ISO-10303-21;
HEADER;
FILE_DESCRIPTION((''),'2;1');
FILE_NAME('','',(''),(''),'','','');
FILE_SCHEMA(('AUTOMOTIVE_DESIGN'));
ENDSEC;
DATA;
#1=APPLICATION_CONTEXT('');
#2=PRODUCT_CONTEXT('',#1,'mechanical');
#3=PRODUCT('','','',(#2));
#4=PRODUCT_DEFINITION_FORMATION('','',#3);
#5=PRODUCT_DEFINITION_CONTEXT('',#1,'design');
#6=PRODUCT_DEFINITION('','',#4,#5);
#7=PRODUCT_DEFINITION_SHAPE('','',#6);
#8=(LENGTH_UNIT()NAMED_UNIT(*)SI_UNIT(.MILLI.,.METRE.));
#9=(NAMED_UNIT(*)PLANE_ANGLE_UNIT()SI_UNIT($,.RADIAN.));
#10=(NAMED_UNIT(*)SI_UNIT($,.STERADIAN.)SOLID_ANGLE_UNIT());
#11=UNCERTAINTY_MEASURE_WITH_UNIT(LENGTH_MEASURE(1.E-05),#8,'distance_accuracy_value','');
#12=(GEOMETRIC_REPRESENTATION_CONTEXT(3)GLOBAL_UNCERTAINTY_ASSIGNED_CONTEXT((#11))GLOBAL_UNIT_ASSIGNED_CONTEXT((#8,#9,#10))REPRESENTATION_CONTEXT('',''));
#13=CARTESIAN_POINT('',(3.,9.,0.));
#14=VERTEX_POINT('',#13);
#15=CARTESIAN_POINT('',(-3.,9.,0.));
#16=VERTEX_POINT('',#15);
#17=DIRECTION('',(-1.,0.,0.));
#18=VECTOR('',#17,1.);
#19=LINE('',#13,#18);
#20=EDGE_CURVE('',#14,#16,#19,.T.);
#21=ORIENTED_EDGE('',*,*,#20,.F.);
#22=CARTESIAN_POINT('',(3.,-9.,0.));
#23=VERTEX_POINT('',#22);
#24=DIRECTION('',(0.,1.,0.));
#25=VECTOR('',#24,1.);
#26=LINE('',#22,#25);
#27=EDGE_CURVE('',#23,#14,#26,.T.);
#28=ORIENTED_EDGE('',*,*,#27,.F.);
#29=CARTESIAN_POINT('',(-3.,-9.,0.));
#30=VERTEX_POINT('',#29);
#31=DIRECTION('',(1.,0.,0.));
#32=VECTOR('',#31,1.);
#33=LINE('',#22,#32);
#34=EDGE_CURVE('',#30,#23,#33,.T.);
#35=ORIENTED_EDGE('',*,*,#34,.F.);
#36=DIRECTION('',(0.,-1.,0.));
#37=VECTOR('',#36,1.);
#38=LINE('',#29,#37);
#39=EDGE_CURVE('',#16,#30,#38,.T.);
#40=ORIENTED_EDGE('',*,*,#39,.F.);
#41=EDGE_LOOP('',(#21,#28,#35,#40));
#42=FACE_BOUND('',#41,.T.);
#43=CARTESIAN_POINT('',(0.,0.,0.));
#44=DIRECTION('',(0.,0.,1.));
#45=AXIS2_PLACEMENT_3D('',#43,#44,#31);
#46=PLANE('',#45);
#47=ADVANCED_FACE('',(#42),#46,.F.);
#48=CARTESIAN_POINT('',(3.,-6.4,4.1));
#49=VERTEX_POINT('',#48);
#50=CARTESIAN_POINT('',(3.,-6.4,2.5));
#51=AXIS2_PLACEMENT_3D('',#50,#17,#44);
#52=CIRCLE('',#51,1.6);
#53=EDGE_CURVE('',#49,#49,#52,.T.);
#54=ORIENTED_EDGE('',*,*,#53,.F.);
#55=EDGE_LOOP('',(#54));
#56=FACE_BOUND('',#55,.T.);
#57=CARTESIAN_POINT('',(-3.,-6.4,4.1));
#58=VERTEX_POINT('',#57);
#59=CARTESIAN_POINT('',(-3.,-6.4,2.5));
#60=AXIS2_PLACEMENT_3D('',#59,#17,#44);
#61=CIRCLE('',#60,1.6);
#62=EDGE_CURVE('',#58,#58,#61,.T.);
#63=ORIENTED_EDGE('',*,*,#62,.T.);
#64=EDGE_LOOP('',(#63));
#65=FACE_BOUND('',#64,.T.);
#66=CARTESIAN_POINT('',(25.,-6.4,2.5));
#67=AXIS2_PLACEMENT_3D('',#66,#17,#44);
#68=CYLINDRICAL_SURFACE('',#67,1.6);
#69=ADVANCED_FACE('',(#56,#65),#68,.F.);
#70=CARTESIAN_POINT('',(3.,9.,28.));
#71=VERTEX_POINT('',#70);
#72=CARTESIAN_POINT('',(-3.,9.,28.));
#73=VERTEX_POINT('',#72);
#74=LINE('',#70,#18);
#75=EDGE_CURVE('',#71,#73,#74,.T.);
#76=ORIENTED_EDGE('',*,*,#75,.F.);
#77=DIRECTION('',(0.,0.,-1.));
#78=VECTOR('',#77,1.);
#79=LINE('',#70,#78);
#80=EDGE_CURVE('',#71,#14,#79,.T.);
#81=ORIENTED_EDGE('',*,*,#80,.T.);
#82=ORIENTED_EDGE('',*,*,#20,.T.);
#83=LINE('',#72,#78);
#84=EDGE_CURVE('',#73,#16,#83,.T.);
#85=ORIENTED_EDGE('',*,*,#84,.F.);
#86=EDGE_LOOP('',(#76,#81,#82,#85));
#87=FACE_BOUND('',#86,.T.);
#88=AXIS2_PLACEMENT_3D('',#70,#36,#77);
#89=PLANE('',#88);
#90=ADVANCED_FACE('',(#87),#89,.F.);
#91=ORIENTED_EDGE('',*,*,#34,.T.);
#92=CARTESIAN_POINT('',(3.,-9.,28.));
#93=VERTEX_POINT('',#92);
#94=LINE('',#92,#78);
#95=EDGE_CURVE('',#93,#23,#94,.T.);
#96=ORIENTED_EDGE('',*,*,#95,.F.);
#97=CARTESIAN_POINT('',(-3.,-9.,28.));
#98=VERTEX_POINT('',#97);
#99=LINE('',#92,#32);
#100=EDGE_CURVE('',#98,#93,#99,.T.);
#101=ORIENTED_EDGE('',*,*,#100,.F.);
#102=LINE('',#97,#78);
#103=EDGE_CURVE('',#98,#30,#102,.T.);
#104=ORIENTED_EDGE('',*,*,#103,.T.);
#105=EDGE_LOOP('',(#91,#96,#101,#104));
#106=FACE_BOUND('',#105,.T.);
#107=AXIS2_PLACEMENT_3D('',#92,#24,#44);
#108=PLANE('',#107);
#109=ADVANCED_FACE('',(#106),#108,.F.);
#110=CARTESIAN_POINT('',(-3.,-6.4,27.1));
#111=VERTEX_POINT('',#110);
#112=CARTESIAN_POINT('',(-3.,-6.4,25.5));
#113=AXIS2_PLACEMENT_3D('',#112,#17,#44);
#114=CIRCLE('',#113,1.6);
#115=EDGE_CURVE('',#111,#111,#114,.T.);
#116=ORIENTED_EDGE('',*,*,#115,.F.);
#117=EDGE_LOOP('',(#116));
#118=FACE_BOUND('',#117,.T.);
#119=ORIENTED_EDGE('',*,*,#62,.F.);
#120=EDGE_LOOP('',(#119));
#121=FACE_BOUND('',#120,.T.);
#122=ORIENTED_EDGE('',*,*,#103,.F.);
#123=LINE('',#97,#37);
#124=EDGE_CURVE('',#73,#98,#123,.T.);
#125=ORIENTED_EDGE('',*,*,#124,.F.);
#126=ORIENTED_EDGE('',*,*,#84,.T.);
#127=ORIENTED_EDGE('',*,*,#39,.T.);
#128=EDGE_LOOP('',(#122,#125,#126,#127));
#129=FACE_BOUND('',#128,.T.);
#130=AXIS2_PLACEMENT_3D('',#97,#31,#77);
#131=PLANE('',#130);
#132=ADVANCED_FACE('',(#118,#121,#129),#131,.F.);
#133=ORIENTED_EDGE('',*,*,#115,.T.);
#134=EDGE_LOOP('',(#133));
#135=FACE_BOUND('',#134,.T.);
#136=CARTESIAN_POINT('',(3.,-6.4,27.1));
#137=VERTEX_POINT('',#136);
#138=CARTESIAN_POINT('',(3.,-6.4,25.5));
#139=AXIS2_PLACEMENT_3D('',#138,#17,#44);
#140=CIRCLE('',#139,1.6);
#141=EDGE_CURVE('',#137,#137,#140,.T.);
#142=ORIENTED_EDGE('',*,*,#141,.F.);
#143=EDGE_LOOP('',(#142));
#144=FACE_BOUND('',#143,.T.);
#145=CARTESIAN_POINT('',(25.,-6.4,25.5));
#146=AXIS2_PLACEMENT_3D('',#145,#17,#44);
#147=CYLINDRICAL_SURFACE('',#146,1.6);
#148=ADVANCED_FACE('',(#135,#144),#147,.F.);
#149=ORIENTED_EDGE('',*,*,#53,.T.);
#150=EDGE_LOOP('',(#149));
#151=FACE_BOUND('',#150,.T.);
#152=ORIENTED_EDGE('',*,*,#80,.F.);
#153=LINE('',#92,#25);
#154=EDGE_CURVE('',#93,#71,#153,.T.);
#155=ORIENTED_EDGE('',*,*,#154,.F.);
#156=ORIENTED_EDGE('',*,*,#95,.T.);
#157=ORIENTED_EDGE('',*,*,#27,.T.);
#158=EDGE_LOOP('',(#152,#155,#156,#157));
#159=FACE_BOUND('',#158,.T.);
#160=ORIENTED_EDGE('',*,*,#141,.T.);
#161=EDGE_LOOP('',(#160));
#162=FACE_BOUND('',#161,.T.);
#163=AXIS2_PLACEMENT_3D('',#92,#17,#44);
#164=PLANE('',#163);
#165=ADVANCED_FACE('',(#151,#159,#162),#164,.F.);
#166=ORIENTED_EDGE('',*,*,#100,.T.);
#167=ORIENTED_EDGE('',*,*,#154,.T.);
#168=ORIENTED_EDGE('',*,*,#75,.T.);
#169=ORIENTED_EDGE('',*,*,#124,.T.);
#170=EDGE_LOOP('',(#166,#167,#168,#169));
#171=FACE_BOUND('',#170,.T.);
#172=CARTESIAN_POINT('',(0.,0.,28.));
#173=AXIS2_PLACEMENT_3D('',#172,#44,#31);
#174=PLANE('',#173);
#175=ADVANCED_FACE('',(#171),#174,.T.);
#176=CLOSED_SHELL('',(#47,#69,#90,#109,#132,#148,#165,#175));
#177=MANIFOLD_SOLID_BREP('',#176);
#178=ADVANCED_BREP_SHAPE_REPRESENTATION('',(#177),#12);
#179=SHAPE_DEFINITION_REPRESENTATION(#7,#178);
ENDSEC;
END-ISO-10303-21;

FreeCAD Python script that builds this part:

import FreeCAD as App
import Part
import Sketcher
from FreeCAD import Vector
Q = App.Units.Quantity


def add_polygon(sketch, points):
    """Adds a closed chain of lines whose ends are joined by coincident constraints."""
    first, n = sketch.GeometryCount, len(points)
    for a, b in zip(points, points[1:] + points[:1]):
        sketch.addGeometry(Part.LineSegment(App.Vector(*a, 0), App.Vector(*b, 0)), False)
    for i in range(n):
        sketch.addConstraint(Sketcher.Constraint("Coincident", first + i, 2, first + (i + 1) % n, 1))

doc = App.newDocument("Part")
body = doc.addObject("PartDesign::Body", "Body")

sketch1 = body.newObject("Sketcher::SketchObject", "Sketch")
sketch1.AttachmentSupport = (doc.getObject("XY_Plane"), [""])
sketch1.MapMode = "FlatFace"
add_polygon(sketch1, [(-3, 9), (-3, -9), (3, -9), (3, 9)])
sketch1.addConstraint([
    Sketcher.Constraint("Vertical", 0),
    Sketcher.Constraint("Horizontal", 1),
    Sketcher.Constraint("Vertical", 2),
    Sketcher.Constraint("Horizontal", 3),
    Sketcher.Constraint("Symmetric", 0, 2, 2, 2, -1, 1),
    Sketcher.Constraint("DistanceX", 1, 1, 1, 2, Q("6 mm")),
    Sketcher.Constraint("DistanceY", 0, 2, 0, 1, Q("18 mm")),
])
pad1 = body.newObject("PartDesign::Pad", "Pad")
pad1.Profile = sketch1
pad1.Length = 28

sketch2 = body.newObject("Sketcher::SketchObject", "Sketch001")
sketch2.AttachmentSupport = (doc.getObject("YZ_Plane"), [""])
sketch2.MapMode = "FlatFace"
sketch2.AttachmentOffset = App.Placement(Vector(0, 0, -3), App.Rotation())
sketch2.addGeometry([
    Part.Circle(Vector(-6.4, 2.5, 0), Vector(0, 0, 1), 1.6),
    Part.Circle(Vector(-6.4, 25.5, 0), Vector(0, 0, 1), 1.6),
], False)
sketch2.addConstraint([
    Sketcher.Constraint("Equal", 0, 1),
    Sketcher.Constraint("Vertical", 0, 3, 1, 3),
    Sketcher.Constraint("Diameter", 0, Q("3.2 mm")),
    Sketcher.Constraint("DistanceY", 0, 3, 1, 3, Q("23 mm")),
    Sketcher.Constraint("DistanceX", 0, 3, -1, 1, Q("6.4 mm")),
    Sketcher.Constraint("DistanceY", -1, 1, 0, 3, Q("2.5 mm")),
])
pocket1 = body.newObject("PartDesign::Pocket", "Pocket")
pocket1.Profile = sketch2
pocket1.Length = 28
pocket1.Reversed = True

doc.recompute()
